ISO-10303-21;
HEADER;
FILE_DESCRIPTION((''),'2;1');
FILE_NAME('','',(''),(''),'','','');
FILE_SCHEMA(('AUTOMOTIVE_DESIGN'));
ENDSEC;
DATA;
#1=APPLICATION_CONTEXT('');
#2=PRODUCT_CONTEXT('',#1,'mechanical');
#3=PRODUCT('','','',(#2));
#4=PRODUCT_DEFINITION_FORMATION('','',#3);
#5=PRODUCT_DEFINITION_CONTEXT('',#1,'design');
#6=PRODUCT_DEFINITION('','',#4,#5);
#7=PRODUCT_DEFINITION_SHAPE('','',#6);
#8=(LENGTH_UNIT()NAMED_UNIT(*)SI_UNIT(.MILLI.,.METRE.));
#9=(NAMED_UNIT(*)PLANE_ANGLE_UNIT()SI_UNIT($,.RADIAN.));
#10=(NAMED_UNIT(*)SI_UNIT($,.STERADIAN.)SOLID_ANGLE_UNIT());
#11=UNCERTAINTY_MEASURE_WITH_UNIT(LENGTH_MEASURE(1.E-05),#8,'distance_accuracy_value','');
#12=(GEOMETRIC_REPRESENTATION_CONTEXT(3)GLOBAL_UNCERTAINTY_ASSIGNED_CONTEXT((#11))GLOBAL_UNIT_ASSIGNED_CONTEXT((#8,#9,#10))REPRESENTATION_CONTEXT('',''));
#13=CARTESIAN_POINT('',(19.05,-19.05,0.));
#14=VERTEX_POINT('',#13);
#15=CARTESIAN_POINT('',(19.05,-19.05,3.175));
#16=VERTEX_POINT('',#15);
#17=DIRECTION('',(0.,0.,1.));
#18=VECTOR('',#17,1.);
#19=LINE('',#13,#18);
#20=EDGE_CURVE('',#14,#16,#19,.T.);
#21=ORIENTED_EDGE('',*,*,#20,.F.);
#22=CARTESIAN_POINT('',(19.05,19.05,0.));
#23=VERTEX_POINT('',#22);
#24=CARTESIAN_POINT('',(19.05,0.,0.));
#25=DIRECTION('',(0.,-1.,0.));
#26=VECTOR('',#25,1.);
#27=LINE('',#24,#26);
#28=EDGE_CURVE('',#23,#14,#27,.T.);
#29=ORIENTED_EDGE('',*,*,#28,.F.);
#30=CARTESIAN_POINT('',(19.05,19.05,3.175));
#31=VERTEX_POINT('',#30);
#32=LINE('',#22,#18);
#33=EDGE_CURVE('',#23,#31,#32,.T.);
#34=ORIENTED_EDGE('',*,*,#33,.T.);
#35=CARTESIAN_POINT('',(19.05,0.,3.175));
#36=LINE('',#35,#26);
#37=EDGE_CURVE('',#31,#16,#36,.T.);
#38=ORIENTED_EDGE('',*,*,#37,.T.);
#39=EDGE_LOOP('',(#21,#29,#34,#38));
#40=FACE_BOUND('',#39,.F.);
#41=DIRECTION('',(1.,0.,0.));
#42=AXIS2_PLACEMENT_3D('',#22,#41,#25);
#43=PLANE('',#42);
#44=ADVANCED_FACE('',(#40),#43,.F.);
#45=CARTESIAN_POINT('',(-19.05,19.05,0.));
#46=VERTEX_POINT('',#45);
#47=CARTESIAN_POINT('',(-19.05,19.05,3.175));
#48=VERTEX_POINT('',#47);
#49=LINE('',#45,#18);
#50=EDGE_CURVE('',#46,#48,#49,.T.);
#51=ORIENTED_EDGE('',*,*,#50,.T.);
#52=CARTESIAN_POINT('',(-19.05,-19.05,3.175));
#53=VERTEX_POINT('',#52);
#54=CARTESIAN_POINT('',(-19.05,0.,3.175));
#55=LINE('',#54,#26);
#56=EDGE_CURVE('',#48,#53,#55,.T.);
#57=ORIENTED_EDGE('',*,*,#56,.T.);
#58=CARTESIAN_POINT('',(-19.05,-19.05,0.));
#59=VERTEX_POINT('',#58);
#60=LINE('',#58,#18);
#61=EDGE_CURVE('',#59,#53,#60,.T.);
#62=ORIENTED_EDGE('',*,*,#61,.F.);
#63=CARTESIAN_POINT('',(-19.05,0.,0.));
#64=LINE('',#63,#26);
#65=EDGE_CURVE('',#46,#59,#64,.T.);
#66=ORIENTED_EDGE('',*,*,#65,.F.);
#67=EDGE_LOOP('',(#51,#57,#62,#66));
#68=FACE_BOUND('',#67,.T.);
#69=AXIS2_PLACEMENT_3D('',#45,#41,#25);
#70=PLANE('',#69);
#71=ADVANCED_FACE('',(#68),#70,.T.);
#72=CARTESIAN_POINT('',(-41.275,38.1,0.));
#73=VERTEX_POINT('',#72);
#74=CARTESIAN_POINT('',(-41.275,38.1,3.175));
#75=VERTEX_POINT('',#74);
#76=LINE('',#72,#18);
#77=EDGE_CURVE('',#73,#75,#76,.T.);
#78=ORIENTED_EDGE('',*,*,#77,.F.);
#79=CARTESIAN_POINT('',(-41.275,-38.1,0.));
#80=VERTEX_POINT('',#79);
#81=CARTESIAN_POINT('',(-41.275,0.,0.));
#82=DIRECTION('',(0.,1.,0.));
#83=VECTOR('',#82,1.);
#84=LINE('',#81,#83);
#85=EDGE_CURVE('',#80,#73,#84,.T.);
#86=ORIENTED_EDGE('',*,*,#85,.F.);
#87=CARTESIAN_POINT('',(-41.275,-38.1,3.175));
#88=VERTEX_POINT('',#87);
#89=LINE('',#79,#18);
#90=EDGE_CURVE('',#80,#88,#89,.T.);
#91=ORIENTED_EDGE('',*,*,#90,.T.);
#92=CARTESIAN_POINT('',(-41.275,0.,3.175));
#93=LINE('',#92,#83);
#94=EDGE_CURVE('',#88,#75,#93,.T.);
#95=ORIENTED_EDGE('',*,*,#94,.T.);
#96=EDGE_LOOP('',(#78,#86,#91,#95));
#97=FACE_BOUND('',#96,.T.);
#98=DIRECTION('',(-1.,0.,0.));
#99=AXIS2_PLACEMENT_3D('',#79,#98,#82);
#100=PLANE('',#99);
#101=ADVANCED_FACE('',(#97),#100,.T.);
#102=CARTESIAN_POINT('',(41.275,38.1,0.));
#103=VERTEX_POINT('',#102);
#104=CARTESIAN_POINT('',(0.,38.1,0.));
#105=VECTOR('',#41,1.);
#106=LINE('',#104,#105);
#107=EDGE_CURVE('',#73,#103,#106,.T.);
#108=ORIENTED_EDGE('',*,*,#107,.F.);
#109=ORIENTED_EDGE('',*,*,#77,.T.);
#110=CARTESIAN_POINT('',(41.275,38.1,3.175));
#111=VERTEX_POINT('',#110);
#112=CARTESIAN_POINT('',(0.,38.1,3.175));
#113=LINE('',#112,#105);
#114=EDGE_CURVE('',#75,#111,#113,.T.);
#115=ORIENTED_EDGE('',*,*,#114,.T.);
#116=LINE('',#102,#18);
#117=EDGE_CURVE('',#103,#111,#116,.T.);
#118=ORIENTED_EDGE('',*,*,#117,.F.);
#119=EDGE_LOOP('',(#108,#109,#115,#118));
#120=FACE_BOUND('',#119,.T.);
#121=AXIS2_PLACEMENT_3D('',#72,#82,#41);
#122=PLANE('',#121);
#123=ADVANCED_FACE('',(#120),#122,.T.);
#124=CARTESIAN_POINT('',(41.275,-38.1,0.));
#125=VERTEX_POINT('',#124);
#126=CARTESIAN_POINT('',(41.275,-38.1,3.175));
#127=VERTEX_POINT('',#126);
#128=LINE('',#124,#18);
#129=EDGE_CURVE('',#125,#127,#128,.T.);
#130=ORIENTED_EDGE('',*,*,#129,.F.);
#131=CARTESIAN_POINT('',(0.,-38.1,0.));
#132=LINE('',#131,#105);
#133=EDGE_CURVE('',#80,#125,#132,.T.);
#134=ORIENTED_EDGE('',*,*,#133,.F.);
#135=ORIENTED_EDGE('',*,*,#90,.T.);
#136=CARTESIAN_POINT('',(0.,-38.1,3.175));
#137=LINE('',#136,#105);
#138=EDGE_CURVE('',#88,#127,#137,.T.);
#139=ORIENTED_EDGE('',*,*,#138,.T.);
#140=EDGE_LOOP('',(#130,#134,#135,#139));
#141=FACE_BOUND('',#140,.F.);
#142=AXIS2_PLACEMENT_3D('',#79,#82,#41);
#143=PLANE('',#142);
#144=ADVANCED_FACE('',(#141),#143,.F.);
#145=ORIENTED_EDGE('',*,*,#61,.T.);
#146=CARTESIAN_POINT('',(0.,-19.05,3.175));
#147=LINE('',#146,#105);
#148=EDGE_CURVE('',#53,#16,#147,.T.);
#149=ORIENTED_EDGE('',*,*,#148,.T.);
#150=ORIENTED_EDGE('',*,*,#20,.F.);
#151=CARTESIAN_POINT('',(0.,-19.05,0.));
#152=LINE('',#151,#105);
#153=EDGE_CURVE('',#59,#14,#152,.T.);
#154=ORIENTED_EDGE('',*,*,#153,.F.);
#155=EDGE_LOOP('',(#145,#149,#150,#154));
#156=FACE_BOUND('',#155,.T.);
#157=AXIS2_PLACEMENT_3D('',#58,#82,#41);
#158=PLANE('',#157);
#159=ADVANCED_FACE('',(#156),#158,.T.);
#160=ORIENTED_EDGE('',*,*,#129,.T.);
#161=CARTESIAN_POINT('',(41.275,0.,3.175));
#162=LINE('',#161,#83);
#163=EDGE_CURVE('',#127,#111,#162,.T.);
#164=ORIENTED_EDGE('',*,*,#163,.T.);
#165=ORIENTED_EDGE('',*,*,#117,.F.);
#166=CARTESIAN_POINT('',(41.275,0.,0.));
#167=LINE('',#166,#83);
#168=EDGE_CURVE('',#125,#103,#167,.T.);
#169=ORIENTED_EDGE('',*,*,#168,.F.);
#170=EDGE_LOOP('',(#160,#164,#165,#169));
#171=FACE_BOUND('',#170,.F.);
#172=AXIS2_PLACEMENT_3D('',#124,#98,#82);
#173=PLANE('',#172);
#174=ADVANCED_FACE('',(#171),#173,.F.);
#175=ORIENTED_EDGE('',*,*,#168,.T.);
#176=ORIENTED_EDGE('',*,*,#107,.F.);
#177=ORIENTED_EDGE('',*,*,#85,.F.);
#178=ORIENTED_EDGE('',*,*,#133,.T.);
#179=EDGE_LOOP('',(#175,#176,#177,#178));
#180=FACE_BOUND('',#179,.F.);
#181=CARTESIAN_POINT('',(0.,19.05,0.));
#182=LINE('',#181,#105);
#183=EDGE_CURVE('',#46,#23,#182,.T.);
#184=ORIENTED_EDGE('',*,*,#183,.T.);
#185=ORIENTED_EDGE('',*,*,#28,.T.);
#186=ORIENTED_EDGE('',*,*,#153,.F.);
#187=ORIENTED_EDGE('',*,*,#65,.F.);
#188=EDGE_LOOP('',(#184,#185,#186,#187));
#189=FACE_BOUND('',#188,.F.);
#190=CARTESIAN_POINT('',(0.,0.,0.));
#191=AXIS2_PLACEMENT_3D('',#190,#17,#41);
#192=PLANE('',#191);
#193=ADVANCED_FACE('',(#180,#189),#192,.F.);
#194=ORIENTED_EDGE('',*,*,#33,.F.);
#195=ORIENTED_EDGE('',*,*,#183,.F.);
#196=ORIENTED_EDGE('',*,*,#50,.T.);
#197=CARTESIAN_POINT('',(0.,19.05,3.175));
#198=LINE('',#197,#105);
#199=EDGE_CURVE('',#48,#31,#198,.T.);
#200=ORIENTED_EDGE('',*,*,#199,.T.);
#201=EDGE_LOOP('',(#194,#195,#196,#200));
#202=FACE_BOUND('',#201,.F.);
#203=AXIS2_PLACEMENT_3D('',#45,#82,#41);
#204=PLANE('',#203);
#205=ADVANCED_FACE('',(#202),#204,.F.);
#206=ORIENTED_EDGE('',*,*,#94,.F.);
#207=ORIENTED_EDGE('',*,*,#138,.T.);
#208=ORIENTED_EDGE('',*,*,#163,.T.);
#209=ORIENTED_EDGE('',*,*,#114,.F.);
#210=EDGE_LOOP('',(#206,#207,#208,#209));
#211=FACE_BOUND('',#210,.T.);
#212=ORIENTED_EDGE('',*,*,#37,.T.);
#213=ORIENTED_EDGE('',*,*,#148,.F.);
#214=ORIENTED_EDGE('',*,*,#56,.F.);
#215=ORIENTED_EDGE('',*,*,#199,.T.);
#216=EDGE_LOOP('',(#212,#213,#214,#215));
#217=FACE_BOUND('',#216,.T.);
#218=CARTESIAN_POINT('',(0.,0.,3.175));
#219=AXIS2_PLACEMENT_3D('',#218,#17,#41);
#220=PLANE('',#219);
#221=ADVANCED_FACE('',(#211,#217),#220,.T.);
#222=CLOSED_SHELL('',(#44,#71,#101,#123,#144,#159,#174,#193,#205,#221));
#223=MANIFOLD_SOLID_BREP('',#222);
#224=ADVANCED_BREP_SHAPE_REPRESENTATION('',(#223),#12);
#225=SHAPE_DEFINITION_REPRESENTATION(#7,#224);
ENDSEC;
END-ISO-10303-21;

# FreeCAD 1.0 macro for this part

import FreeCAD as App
import Part
import Sketcher
Q = App.Units.Quantity

doc = App.newDocument("Part")
body = doc.addObject("PartDesign::Body", "Body")

# Sketch on XY plane
sketch1 = doc.addObject("Sketcher::SketchObject", "Sketch")
body.addObject(sketch1)
sketch1.AttachmentSupport = (doc.XY_Plane, [""])
sketch1.MapMode = "FlatFace"
sketch1.addGeometry([
    Part.LineSegment(App.Vector(-41, 38, 0), App.Vector(-41, -38, 0)),
    Part.LineSegment(App.Vector(-41, -38, 0), App.Vector(41, -38, 0)),
    Part.LineSegment(App.Vector(41, -38, 0), App.Vector(41, 38, 0)),
    Part.LineSegment(App.Vector(41, 38, 0), App.Vector(-41, 38, 0)),
], False)
sketch1.addConstraint([
    Sketcher.Constraint("Coincident", 0, 2, 1, 1),
    Sketcher.Constraint("Coincident", 1, 2, 2, 1),
    Sketcher.Constraint("Coincident", 2, 2, 3, 1),
    Sketcher.Constraint("Coincident", 3, 2, 0, 1),
    Sketcher.Constraint("Vertical", 0),
    Sketcher.Constraint("Horizontal", 1),
    Sketcher.Constraint("Vertical", 2),
    Sketcher.Constraint("Horizontal", 3),
    Sketcher.Constraint("Symmetric", 0, 2, 2, 2, -1, 1),
    Sketcher.Constraint("DistanceY", 0, 2, 0, 1, Q("3 in")),
    Sketcher.Constraint("DistanceX", 1, 1, 1, 2, Q("3.25 in")),
])
pad1 = doc.addObject("PartDesign::Pad", "Pad")
body.addObject(pad1)
pad1.Profile = sketch1
pad1.Length = Q("0.125 in")

# Sketch on XY plane
sketch2 = doc.addObject("Sketcher::SketchObject", "Sketch001")
body.addObject(sketch2)
sketch2.AttachmentSupport = (doc.XY_Plane, [""])
sketch2.MapMode = "FlatFace"
sketch2.addGeometry([
    Part.LineSegment(App.Vector(-19, -19, 0), App.Vector(-19, 19, 0)),
    Part.LineSegment(App.Vector(-19, 19, 0), App.Vector(19, 19, 0)),
    Part.LineSegment(App.Vector(19, 19, 0), App.Vector(19, -19, 0)),
    Part.LineSegment(App.Vector(19, -19, 0), App.Vector(-19, -19, 0)),
], False)
sketch2.addConstraint([
    Sketcher.Constraint("Coincident", 0, 2, 1, 1),
    Sketcher.Constraint("Coincident", 1, 2, 2, 1),
    Sketcher.Constraint("Coincident", 2, 2, 3, 1),
    Sketcher.Constraint("Coincident", 3, 2, 0, 1),
    Sketcher.Constraint("Vertical", 0),
    Sketcher.Constraint("Horizontal", 1),
    Sketcher.Constraint("Vertical", 2),
    Sketcher.Constraint("Horizontal", 3),
    Sketcher.Constraint("Symmetric", 0, 2, 2, 2, -1, 1),
    Sketcher.Constraint("Equal", 3, 0),
    Sketcher.Constraint("DistanceX", 1, 1, 1, 2, Q("1.5 in")),
])
pocket1 = doc.addObject("PartDesign::Pocket", "Pocket")
body.addObject(pocket1)
pocket1.Profile = sketch2
pocket1.Length = Q("0.125 in")
pocket1.Reversed = True

doc.recompute()
